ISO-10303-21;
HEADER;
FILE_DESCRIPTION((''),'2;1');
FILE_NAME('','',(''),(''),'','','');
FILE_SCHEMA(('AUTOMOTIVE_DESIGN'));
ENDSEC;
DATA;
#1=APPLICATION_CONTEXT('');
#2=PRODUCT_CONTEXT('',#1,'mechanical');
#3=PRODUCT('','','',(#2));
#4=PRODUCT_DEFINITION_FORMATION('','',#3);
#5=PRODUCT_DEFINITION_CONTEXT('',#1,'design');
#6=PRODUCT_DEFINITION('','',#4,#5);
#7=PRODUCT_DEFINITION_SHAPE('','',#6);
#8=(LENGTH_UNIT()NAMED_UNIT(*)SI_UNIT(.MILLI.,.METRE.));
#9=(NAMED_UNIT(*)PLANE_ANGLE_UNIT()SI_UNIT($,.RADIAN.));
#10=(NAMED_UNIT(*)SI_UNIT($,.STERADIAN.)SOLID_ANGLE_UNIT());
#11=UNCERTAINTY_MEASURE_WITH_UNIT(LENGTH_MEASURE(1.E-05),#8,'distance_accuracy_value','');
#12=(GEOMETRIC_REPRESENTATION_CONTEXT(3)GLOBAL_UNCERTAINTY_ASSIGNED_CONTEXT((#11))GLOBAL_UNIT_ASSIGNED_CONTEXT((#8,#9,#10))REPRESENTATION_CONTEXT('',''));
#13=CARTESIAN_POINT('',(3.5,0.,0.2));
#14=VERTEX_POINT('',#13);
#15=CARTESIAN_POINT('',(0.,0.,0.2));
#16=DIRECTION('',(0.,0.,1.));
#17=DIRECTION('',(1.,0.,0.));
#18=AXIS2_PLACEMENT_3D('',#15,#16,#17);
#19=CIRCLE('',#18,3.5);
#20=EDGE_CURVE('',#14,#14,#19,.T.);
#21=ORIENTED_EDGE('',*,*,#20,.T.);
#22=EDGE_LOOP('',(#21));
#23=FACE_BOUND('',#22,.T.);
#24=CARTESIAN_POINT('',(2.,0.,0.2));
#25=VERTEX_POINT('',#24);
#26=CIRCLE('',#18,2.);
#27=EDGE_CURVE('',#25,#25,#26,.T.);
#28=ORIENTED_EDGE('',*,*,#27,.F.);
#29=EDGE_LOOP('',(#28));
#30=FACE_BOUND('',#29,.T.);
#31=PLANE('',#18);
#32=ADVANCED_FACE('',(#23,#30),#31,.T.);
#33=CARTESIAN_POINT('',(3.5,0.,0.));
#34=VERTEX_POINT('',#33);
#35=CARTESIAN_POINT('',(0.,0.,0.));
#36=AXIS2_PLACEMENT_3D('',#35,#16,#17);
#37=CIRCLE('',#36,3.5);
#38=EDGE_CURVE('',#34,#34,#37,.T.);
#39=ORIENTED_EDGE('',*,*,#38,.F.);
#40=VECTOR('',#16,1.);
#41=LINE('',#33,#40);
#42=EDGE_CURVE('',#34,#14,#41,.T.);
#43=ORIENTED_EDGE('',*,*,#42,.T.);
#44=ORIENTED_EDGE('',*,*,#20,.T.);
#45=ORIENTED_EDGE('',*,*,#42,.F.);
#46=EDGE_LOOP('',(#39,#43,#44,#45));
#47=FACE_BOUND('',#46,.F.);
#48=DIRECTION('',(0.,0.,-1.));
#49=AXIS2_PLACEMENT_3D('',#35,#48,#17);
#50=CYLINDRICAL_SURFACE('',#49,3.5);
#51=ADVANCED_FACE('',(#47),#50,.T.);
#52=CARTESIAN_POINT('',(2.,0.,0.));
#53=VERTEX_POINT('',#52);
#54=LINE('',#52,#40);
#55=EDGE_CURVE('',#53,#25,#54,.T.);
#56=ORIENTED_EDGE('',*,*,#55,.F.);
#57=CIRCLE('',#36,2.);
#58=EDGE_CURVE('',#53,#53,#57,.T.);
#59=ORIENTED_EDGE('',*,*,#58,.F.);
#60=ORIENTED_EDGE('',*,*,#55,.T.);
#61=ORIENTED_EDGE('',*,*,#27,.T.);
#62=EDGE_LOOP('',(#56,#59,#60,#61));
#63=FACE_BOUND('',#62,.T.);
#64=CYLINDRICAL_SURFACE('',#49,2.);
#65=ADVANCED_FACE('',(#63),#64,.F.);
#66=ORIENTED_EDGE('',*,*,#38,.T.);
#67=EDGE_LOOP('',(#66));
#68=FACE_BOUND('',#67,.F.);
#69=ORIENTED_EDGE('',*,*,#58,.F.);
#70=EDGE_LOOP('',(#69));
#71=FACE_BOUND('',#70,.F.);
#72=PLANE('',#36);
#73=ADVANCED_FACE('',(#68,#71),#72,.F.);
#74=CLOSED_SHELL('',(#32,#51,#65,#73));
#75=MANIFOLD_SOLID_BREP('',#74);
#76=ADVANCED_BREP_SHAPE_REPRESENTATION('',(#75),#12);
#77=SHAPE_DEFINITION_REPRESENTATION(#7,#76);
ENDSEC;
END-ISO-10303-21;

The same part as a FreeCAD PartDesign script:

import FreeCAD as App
import Part
import Sketcher
Q = App.Units.Quantity

doc = App.newDocument("Part")
params = doc.addObject("Spreadsheet::Sheet", "Params")
for row, (alias, value) in enumerate([
    ("sketch1_diameter", "7 mm"),
    ("sketch1_diameter2", "4 mm"),
    ("pad1_length", "0.2 mm"),
], start=1):
    params.set(f"A{row}", alias)
    params.set(f"B{row}", "=" + value)
    params.setAlias(f"B{row}", alias)

body = doc.addObject("PartDesign::Body", "Body")

# Sketch on XY plane
sketch1 = doc.addObject("Sketcher::SketchObject", "Sketch")
body.addObject(sketch1)
sketch1.AttachmentSupport = (doc.XY_Plane, [""])
sketch1.MapMode = "FlatFace"
sketch1.addGeometry(Part.Circle(App.Vector(0, 0, 0), App.Vector(0, 0, 1), 3.5), False)
sketch1.addGeometry(Part.Circle(App.Vector(0, 0, 0), App.Vector(0, 0, 1), 2), False)
sketch1.addConstraint(Sketcher.Constraint("Coincident", 0, 3, -1, 1))
sketch1.addConstraint(Sketcher.Constraint("Coincident", 1, 3, -1, 1))
sketch1.addConstraint(Sketcher.Constraint("Diameter", 0, Q("7 mm")))
sketch1.addConstraint(Sketcher.Constraint("Diameter", 1, Q("4 mm")))
sketch1.setExpression("Constraints[2]", "Params.sketch1_diameter")
sketch1.setExpression("Constraints[3]", "Params.sketch1_diameter2")
pad1 = doc.addObject("PartDesign::Pad", "Pad")
body.addObject(pad1)
pad1.Profile = sketch1
pad1.setExpression("Length", "Params.pad1_length")

doc.recompute()
